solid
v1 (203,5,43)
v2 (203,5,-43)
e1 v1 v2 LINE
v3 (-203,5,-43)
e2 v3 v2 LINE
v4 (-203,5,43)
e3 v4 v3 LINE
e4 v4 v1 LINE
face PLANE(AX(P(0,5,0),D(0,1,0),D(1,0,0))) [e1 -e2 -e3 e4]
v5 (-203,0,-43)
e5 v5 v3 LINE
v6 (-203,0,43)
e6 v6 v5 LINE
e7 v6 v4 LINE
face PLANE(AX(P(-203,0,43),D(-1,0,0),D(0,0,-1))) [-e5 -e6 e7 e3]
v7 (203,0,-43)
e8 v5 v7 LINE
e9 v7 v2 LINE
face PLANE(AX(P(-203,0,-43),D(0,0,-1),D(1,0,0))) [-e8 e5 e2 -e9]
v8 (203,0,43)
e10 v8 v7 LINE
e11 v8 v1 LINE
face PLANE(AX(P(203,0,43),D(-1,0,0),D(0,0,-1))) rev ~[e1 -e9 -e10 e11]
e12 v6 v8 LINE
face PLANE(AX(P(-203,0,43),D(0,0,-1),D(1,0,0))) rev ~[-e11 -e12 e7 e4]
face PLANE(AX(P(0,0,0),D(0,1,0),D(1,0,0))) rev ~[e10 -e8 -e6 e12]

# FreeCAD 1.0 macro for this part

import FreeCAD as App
import Part
import Sketcher


def add_polygon(sketch, points):
    """Adds a closed chain of lines whose ends are joined by coincident constraints."""
    first, n = sketch.GeometryCount, len(points)
    for a, b in zip(points, points[1:] + points[:1]):
        sketch.addGeometry(Part.LineSegment(App.Vector(*a, 0), App.Vector(*b, 0)), False)
    for i in range(n):
        sketch.addConstraint(Sketcher.Constraint("Coincident", first + i, 2, first + (i + 1) % n, 1))

doc = App.newDocument("Part")
body = doc.addObject("PartDesign::Body", "Body")

# Sketch on XZ plane
sketch1 = body.newObject("Sketcher::SketchObject", "Sketch")
sketch1.AttachmentSupport = (doc.getObject("XZ_Plane"), [""])
sketch1.MapMode = "FlatFace"
add_polygon(sketch1, [(-203, -43), (-203, 43), (203, 43), (203, -43)])  # lines 0-3
sketch1.addConstraint([
    Sketcher.Constraint("Vertical", 0),
    Sketcher.Constraint("Horizontal", 1),
    Sketcher.Constraint("Vertical", 2),
    Sketcher.Constraint("Horizontal", 3),
    Sketcher.Constraint("Symmetric", 0, 2, 2, 2, -1, 1),
    Sketcher.Constraint("DistanceX", 1, 1, 1, 2, 406.0),
    Sketcher.Constraint("DistanceY", 0, 1, 0, 2, 86.0),
])
pad1 = body.newObject("PartDesign::Pad", "Pad")
pad1.Profile = sketch1
pad1.Length = 5
pad1.Reversed = True

doc.recompute()
